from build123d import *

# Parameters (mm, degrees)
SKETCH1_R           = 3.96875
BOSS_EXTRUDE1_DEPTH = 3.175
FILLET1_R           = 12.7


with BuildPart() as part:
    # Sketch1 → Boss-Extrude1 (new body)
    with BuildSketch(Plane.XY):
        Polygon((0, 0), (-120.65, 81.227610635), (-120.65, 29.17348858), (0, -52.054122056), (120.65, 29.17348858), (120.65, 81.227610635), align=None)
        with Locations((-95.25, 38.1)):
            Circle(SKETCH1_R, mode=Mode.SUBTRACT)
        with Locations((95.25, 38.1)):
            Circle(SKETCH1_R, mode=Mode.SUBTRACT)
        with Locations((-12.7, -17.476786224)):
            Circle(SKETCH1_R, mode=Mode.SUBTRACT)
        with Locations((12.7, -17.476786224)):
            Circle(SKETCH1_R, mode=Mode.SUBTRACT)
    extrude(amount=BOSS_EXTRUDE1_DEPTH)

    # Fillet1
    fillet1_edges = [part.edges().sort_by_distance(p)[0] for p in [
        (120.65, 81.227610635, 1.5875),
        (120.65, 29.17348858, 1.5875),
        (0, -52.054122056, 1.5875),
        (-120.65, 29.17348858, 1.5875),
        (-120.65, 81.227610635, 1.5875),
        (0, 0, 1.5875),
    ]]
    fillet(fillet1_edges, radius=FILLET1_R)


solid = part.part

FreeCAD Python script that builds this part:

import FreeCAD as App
import Part
import Sketcher
Q = App.Units.Quantity


def edges_at(feature, points):
    """Names of the edges that pass closest to the given points."""
    edges = feature.Shape.Edges
    near = lambda p: min(range(len(edges)), key=lambda i: edges[i].distToShape(Part.Vertex(*p))[0])
    return sorted({f"Edge{near(p) + 1}" for p in points})

doc = App.newDocument("Part")
body = doc.addObject("PartDesign::Body", "Body")

sketch1 = doc.addObject("Sketcher::SketchObject", "Sketch")
body.addObject(sketch1)
sketch1.AttachmentSupport = (doc.XY_Plane, [""])
sketch1.MapMode = "FlatFace"
sketch1.addGeometry([
    Part.LineSegment(App.Vector(0, 0, 0), App.Vector(-120.7, 81.2, 0)),
    Part.LineSegment(App.Vector(-120.7, 81.2, 0), App.Vector(-120.7, 29.2, 0)),
    Part.LineSegment(App.Vector(-120.7, 29.2, 0), App.Vector(0, -52.1, 0)),
    Part.LineSegment(App.Vector(0, -52.1, 0), App.Vector(120.7, 29.2, 0)),
    Part.LineSegment(App.Vector(120.7, 29.2, 0), App.Vector(120.7, 81.2, 0)),
    Part.LineSegment(App.Vector(120.7, 81.2, 0), App.Vector(0, 0, 0)),
    Part.Circle(App.Vector(-12.7, -17.5, 0), App.Vector(0, 0, 1), 4),
    Part.Circle(App.Vector(12.7, -17.5, 0), App.Vector(0, 0, 1), 4),
    Part.Circle(App.Vector(-95.2, 38.1, 0), App.Vector(0, 0, 1), 4),
    Part.Circle(App.Vector(95.2, 38.1, 0), App.Vector(0, 0, 1), 4),
], False)
sketch1.addConstraint([
    Sketcher.Constraint("Coincident", 0, 2, 1, 1),
    Sketcher.Constraint("Coincident", 1, 2, 2, 1),
    Sketcher.Constraint("Coincident", 2, 2, 3, 1),
    Sketcher.Constraint("Coincident", 3, 2, 4, 1),
    Sketcher.Constraint("Coincident", 4, 2, 5, 1),
    Sketcher.Constraint("Coincident", 5, 2, 0, 1),
    Sketcher.Constraint("Vertical", 1),
    Sketcher.Constraint("Vertical", 4),
    Sketcher.Constraint("Coincident", 5, 2, -1, 1),
    Sketcher.Constraint("Equal", 6, 7),
    Sketcher.Constraint("Equal", 7, 8),
    Sketcher.Constraint("Equal", 8, 9),
    Sketcher.Constraint("Symmetric", 6, 3, 7, 3, -2),
    Sketcher.Constraint("Symmetric", 8, 3, 9, 3, -2),
    Sketcher.Constraint("Symmetric", 1, 2, 3, 2, -2),
    Sketcher.Constraint("PointOnObject", 2, 2, -2),
    Sketcher.Constraint("Parallel", 0, 2),
    Sketcher.Constraint("Parallel", 3, 5),
    Sketcher.Constraint("Diameter", 6, Q("0.3125 in")),
    Sketcher.Constraint("DistanceX", 6, 3, 7, 3, Q("1 in")),
    Sketcher.Constraint("DistanceX", 0, 2, 8, 3, Q("1 in")),
    Sketcher.Constraint("DistanceY", -1, 1, 8, 3, Q("1.5 in")),
    Sketcher.Constraint("DistanceX", 8, 3, 9, 3, Q("7.5 in")),
    Sketcher.Constraint("DistanceY", 6, 3, 0, 2, Q("3.8859999 in")),
    Sketcher.Constraint("Distance", 0, 145.445341),
    Sketcher.Constraint("DistanceY", 1, 2, 1, 1, 52.054122),
])
pad1 = doc.addObject("PartDesign::Pad", "Pad")
body.addObject(pad1)
pad1.Profile = sketch1
pad1.Length = Q("0.125 in")
doc.recompute()

fillet = doc.addObject("PartDesign::Fillet", "Fillet")
body.addObject(fillet)
fillet.Base = (pad1, edges_at(pad1, [
    (120.65, 81.228, 1.587),
    (120.65, 29.173, 1.587),
    (0, -52.054, 1.587),
    (-120.65, 29.173, 1.587),
    (-120.65, 81.228, 1.587),
    (0, 0, 1.587),
]))
fillet.Radius = Q("0.5 in")

doc.recompute()
